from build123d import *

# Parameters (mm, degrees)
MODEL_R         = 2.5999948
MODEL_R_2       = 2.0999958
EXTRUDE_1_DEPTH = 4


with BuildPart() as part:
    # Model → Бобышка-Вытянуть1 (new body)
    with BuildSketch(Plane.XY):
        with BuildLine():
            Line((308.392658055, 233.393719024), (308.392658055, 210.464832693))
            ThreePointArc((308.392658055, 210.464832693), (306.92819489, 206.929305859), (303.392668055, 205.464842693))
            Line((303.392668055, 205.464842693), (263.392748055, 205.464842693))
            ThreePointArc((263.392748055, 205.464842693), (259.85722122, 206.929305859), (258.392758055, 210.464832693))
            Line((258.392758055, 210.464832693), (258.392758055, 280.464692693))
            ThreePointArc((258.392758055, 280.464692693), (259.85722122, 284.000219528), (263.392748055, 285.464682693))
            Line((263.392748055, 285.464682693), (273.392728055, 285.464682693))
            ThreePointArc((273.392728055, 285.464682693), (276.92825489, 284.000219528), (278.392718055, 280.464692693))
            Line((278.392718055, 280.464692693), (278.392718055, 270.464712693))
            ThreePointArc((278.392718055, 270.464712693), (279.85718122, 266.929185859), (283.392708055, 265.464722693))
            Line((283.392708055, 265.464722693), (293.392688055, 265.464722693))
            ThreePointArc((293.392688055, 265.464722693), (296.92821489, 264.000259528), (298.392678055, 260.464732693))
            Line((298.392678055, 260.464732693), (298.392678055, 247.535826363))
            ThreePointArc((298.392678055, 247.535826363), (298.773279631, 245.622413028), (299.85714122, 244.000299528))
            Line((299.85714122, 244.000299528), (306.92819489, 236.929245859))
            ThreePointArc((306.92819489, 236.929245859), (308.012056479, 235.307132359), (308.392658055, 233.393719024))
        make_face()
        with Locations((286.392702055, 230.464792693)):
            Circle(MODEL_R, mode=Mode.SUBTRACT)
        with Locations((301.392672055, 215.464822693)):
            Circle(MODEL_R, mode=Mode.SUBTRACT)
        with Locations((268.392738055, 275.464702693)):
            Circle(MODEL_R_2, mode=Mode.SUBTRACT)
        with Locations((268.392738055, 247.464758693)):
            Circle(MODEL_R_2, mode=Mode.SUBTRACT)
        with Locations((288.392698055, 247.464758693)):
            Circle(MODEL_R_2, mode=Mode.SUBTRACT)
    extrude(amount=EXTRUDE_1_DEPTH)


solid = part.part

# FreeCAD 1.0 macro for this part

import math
import FreeCAD as App
import Part
import Sketcher
Q = App.Units.Quantity

doc = App.newDocument("Part")
params = doc.addObject("Spreadsheet::Sheet", "Params")
for row, (alias, value) in enumerate([
    ("pad1_length", "4 mm"),
], start=1):
    params.set(f"A{row}", alias)
    params.set(f"B{row}", "=" + value)
    params.setAlias(f"B{row}", alias)

body = doc.addObject("PartDesign::Body", "Body")

sketch1 = body.newObject("Sketcher::SketchObject", "Sketch")
sketch1.AttachmentSupport = (doc.getObject("XY_Plane"), [""])
sketch1.MapMode = "FlatFace"
sketch1.addGeometry(Part.LineSegment(App.Vector(308.4, 210.5, 0), App.Vector(308.4, 233.4, 0)), False)
sketch1.addGeometry(Part.ArcOfCircle(Part.Circle(App.Vector(303.4, 233.4, 0), App.Vector(0, 0, 1), 5), math.radians(0), math.radians(45)), False)
sketch1.addGeometry(Part.LineSegment(App.Vector(306.9, 236.9, 0), App.Vector(299.9, 244, 0)), False)
sketch1.addGeometry(Part.ArcOfCircle(Part.Circle(App.Vector(303.4, 247.5, 0), App.Vector(0, 0, 1), 5), math.radians(180), math.radians(225)), False)
sketch1.addGeometry(Part.LineSegment(App.Vector(298.4, 247.5, 0), App.Vector(298.4, 260.5, 0)), False)
sketch1.addGeometry(Part.ArcOfCircle(Part.Circle(App.Vector(293.4, 260.5, 0), App.Vector(0, 0, 1), 5), math.radians(0), math.radians(90)), False)
sketch1.addGeometry(Part.LineSegment(App.Vector(293.4, 265.5, 0), App.Vector(283.4, 265.5, 0)), False)
sketch1.addGeometry(Part.ArcOfCircle(Part.Circle(App.Vector(283.4, 270.5, 0), App.Vector(0, 0, 1), 5), math.radians(-180), math.radians(-90)), False)
sketch1.addGeometry(Part.LineSegment(App.Vector(278.4, 270.5, 0), App.Vector(278.4, 280.5, 0)), False)
sketch1.addGeometry(Part.ArcOfCircle(Part.Circle(App.Vector(273.4, 280.5, 0), App.Vector(0, 0, 1), 5), math.radians(0), math.radians(90)), False)
sketch1.addGeometry(Part.LineSegment(App.Vector(273.4, 285.5, 0), App.Vector(263.4, 285.5, 0)), False)
sketch1.addGeometry(Part.ArcOfCircle(Part.Circle(App.Vector(263.4, 280.5, 0), App.Vector(0, 0, 1), 5), math.radians(90), math.radians(180)), False)
sketch1.addGeometry(Part.LineSegment(App.Vector(258.4, 280.5, 0), App.Vector(258.4, 210.5, 0)), False)
sketch1.addGeometry(Part.ArcOfCircle(Part.Circle(App.Vector(263.4, 210.5, 0), App.Vector(0, 0, 1), 5), math.radians(-180), math.radians(-90)), False)
sketch1.addGeometry(Part.LineSegment(App.Vector(263.4, 205.5, 0), App.Vector(303.4, 205.5, 0)), False)
sketch1.addGeometry(Part.ArcOfCircle(Part.Circle(App.Vector(303.4, 210.5, 0), App.Vector(0, 0, 1), 5), math.radians(-90), math.radians(0)), False)
sketch1.addGeometry(Part.Circle(App.Vector(301.4, 215.5, 0), App.Vector(0, 0, 1), 2.6), False)
sketch1.addGeometry(Part.Circle(App.Vector(286.4, 230.5, 0), App.Vector(0, 0, 1), 2.6), False)
sketch1.addGeometry(Part.Circle(App.Vector(288.4, 247.5, 0), App.Vector(0, 0, 1), 2.1), False)
sketch1.addGeometry(Part.Circle(App.Vector(268.4, 247.5, 0), App.Vector(0, 0, 1), 2.1), False)
sketch1.addGeometry(Part.Circle(App.Vector(268.4, 275.5, 0), App.Vector(0, 0, 1), 2.1), False)
sketch1.addConstraint(Sketcher.Constraint("Tangent", 0, 2, 1, 1))
sketch1.addConstraint(Sketcher.Constraint("Tangent", 1, 2, 2, 1))
sketch1.addConstraint(Sketcher.Constraint("Tangent", 2, 2, 3, 2))
sketch1.addConstraint(Sketcher.Constraint("Tangent", 3, 1, 4, 1))
sketch1.addConstraint(Sketcher.Constraint("Tangent", 4, 2, 5, 1))
sketch1.addConstraint(Sketcher.Constraint("Tangent", 5, 2, 6, 1))
sketch1.addConstraint(Sketcher.Constraint("Tangent", 6, 2, 7, 2))
sketch1.addConstraint(Sketcher.Constraint("Tangent", 7, 1, 8, 1))
sketch1.addConstraint(Sketcher.Constraint("Tangent", 8, 2, 9, 1))
sketch1.addConstraint(Sketcher.Constraint("Tangent", 9, 2, 10, 1))
sketch1.addConstraint(Sketcher.Constraint("Tangent", 10, 2, 11, 1))
sketch1.addConstraint(Sketcher.Constraint("Tangent", 11, 2, 12, 1))
sketch1.addConstraint(Sketcher.Constraint("Tangent", 12, 2, 13, 1))
sketch1.addConstraint(Sketcher.Constraint("Tangent", 13, 2, 14, 1))
sketch1.addConstraint(Sketcher.Constraint("Tangent", 14, 2, 15, 1))
sketch1.addConstraint(Sketcher.Constraint("Tangent", 15, 2, 0, 1))
sketch1.addConstraint(Sketcher.Constraint("Vertical", 0))
sketch1.addConstraint(Sketcher.Constraint("Vertical", 4))
sketch1.addConstraint(Sketcher.Constraint("Horizontal", 6))
sketch1.addConstraint(Sketcher.Constraint("Vertical", 8))
sketch1.addConstraint(Sketcher.Constraint("Horizontal", 10))
sketch1.addConstraint(Sketcher.Constraint("Vertical", 12))
sketch1.addConstraint(Sketcher.Constraint("Horizontal", 14))
sketch1.addConstraint(Sketcher.Constraint("Equal", 1, 3))
sketch1.addConstraint(Sketcher.Constraint("Equal", 3, 5))
sketch1.addConstraint(Sketcher.Constraint("Equal", 5, 7))
sketch1.addConstraint(Sketcher.Constraint("Equal", 7, 9))
sketch1.addConstraint(Sketcher.Constraint("Equal", 9, 11))
sketch1.addConstraint(Sketcher.Constraint("Equal", 11, 13))
sketch1.addConstraint(Sketcher.Constraint("Equal", 13, 15))
sketch1.addConstraint(Sketcher.Constraint("Equal", 16, 17))
sketch1.addConstraint(Sketcher.Constraint("Equal", 18, 19))
sketch1.addConstraint(Sketcher.Constraint("Equal", 19, 20))
sketch1.addConstraint(Sketcher.Constraint("Horizontal", 18, 3, 19, 3))
sketch1.addConstraint(Sketcher.Constraint("Vertical", 1, 3, 3, 3))
sketch1.addConstraint(Sketcher.Constraint("Vertical", 19, 3, 20, 3))
sketch1.addConstraint(Sketcher.Constraint("Equal", 6, 10))
sketch1.addConstraint(Sketcher.Constraint("Equal", 10, 8))
sketch1.addConstraint(Sketcher.Constraint("Angle", 2, Q("135 deg")))
sketch1.addConstraint(Sketcher.Constraint("Diameter", 16, 5.19999))
sketch1.addConstraint(Sketcher.Constraint("Diameter", 18, 4.199992))
sketch1.addConstraint(Sketcher.Constraint("Radius", 1, 4.99999))
sketch1.addConstraint(Sketcher.Constraint("DistanceX", 6, 2, 6, 1, 9.99998))
sketch1.addConstraint(Sketcher.Constraint("DistanceY", 12, 2, 12, 1, 69.99986))
sketch1.addConstraint(Sketcher.Constraint("DistanceX", -1, 1, 18, 3, 288.392698))
sketch1.addConstraint(Sketcher.Constraint("DistanceY", -1, 1, 2, 2, 244.0003))
sketch1.addConstraint(Sketcher.Constraint("DistanceY", 0, 1, 0, 2, 22.928886))
sketch1.addConstraint(Sketcher.Constraint("DistanceX", -1, 1, 1, 3, 303.392668))
sketch1.addConstraint(Sketcher.Constraint("DistanceY", -1, 1, 18, 3, 247.464759))
sketch1.addConstraint(Sketcher.Constraint("DistanceX", -1, 1, 19, 3, 268.392738))
sketch1.addConstraint(Sketcher.Constraint("DistanceY", 15, 3, 16, 3, 4.99999))
sketch1.addConstraint(Sketcher.Constraint("DistanceX", 17, 3, 16, 3, 14.99997))
sketch1.addConstraint(Sketcher.Constraint("DistanceY", 16, 3, 17, 3, 14.99997))
sketch1.addConstraint(Sketcher.Constraint("DistanceY", 20, 3, 11, 3, 4.99999))
sketch1.addConstraint(Sketcher.Constraint("DistanceX", -1, 1, 16, 3, 301.392672))
pad1 = body.newObject("PartDesign::Pad", "Pad")
pad1.Profile = sketch1
pad1.setExpression("Length", "Params.pad1_length")

doc.recompute()
